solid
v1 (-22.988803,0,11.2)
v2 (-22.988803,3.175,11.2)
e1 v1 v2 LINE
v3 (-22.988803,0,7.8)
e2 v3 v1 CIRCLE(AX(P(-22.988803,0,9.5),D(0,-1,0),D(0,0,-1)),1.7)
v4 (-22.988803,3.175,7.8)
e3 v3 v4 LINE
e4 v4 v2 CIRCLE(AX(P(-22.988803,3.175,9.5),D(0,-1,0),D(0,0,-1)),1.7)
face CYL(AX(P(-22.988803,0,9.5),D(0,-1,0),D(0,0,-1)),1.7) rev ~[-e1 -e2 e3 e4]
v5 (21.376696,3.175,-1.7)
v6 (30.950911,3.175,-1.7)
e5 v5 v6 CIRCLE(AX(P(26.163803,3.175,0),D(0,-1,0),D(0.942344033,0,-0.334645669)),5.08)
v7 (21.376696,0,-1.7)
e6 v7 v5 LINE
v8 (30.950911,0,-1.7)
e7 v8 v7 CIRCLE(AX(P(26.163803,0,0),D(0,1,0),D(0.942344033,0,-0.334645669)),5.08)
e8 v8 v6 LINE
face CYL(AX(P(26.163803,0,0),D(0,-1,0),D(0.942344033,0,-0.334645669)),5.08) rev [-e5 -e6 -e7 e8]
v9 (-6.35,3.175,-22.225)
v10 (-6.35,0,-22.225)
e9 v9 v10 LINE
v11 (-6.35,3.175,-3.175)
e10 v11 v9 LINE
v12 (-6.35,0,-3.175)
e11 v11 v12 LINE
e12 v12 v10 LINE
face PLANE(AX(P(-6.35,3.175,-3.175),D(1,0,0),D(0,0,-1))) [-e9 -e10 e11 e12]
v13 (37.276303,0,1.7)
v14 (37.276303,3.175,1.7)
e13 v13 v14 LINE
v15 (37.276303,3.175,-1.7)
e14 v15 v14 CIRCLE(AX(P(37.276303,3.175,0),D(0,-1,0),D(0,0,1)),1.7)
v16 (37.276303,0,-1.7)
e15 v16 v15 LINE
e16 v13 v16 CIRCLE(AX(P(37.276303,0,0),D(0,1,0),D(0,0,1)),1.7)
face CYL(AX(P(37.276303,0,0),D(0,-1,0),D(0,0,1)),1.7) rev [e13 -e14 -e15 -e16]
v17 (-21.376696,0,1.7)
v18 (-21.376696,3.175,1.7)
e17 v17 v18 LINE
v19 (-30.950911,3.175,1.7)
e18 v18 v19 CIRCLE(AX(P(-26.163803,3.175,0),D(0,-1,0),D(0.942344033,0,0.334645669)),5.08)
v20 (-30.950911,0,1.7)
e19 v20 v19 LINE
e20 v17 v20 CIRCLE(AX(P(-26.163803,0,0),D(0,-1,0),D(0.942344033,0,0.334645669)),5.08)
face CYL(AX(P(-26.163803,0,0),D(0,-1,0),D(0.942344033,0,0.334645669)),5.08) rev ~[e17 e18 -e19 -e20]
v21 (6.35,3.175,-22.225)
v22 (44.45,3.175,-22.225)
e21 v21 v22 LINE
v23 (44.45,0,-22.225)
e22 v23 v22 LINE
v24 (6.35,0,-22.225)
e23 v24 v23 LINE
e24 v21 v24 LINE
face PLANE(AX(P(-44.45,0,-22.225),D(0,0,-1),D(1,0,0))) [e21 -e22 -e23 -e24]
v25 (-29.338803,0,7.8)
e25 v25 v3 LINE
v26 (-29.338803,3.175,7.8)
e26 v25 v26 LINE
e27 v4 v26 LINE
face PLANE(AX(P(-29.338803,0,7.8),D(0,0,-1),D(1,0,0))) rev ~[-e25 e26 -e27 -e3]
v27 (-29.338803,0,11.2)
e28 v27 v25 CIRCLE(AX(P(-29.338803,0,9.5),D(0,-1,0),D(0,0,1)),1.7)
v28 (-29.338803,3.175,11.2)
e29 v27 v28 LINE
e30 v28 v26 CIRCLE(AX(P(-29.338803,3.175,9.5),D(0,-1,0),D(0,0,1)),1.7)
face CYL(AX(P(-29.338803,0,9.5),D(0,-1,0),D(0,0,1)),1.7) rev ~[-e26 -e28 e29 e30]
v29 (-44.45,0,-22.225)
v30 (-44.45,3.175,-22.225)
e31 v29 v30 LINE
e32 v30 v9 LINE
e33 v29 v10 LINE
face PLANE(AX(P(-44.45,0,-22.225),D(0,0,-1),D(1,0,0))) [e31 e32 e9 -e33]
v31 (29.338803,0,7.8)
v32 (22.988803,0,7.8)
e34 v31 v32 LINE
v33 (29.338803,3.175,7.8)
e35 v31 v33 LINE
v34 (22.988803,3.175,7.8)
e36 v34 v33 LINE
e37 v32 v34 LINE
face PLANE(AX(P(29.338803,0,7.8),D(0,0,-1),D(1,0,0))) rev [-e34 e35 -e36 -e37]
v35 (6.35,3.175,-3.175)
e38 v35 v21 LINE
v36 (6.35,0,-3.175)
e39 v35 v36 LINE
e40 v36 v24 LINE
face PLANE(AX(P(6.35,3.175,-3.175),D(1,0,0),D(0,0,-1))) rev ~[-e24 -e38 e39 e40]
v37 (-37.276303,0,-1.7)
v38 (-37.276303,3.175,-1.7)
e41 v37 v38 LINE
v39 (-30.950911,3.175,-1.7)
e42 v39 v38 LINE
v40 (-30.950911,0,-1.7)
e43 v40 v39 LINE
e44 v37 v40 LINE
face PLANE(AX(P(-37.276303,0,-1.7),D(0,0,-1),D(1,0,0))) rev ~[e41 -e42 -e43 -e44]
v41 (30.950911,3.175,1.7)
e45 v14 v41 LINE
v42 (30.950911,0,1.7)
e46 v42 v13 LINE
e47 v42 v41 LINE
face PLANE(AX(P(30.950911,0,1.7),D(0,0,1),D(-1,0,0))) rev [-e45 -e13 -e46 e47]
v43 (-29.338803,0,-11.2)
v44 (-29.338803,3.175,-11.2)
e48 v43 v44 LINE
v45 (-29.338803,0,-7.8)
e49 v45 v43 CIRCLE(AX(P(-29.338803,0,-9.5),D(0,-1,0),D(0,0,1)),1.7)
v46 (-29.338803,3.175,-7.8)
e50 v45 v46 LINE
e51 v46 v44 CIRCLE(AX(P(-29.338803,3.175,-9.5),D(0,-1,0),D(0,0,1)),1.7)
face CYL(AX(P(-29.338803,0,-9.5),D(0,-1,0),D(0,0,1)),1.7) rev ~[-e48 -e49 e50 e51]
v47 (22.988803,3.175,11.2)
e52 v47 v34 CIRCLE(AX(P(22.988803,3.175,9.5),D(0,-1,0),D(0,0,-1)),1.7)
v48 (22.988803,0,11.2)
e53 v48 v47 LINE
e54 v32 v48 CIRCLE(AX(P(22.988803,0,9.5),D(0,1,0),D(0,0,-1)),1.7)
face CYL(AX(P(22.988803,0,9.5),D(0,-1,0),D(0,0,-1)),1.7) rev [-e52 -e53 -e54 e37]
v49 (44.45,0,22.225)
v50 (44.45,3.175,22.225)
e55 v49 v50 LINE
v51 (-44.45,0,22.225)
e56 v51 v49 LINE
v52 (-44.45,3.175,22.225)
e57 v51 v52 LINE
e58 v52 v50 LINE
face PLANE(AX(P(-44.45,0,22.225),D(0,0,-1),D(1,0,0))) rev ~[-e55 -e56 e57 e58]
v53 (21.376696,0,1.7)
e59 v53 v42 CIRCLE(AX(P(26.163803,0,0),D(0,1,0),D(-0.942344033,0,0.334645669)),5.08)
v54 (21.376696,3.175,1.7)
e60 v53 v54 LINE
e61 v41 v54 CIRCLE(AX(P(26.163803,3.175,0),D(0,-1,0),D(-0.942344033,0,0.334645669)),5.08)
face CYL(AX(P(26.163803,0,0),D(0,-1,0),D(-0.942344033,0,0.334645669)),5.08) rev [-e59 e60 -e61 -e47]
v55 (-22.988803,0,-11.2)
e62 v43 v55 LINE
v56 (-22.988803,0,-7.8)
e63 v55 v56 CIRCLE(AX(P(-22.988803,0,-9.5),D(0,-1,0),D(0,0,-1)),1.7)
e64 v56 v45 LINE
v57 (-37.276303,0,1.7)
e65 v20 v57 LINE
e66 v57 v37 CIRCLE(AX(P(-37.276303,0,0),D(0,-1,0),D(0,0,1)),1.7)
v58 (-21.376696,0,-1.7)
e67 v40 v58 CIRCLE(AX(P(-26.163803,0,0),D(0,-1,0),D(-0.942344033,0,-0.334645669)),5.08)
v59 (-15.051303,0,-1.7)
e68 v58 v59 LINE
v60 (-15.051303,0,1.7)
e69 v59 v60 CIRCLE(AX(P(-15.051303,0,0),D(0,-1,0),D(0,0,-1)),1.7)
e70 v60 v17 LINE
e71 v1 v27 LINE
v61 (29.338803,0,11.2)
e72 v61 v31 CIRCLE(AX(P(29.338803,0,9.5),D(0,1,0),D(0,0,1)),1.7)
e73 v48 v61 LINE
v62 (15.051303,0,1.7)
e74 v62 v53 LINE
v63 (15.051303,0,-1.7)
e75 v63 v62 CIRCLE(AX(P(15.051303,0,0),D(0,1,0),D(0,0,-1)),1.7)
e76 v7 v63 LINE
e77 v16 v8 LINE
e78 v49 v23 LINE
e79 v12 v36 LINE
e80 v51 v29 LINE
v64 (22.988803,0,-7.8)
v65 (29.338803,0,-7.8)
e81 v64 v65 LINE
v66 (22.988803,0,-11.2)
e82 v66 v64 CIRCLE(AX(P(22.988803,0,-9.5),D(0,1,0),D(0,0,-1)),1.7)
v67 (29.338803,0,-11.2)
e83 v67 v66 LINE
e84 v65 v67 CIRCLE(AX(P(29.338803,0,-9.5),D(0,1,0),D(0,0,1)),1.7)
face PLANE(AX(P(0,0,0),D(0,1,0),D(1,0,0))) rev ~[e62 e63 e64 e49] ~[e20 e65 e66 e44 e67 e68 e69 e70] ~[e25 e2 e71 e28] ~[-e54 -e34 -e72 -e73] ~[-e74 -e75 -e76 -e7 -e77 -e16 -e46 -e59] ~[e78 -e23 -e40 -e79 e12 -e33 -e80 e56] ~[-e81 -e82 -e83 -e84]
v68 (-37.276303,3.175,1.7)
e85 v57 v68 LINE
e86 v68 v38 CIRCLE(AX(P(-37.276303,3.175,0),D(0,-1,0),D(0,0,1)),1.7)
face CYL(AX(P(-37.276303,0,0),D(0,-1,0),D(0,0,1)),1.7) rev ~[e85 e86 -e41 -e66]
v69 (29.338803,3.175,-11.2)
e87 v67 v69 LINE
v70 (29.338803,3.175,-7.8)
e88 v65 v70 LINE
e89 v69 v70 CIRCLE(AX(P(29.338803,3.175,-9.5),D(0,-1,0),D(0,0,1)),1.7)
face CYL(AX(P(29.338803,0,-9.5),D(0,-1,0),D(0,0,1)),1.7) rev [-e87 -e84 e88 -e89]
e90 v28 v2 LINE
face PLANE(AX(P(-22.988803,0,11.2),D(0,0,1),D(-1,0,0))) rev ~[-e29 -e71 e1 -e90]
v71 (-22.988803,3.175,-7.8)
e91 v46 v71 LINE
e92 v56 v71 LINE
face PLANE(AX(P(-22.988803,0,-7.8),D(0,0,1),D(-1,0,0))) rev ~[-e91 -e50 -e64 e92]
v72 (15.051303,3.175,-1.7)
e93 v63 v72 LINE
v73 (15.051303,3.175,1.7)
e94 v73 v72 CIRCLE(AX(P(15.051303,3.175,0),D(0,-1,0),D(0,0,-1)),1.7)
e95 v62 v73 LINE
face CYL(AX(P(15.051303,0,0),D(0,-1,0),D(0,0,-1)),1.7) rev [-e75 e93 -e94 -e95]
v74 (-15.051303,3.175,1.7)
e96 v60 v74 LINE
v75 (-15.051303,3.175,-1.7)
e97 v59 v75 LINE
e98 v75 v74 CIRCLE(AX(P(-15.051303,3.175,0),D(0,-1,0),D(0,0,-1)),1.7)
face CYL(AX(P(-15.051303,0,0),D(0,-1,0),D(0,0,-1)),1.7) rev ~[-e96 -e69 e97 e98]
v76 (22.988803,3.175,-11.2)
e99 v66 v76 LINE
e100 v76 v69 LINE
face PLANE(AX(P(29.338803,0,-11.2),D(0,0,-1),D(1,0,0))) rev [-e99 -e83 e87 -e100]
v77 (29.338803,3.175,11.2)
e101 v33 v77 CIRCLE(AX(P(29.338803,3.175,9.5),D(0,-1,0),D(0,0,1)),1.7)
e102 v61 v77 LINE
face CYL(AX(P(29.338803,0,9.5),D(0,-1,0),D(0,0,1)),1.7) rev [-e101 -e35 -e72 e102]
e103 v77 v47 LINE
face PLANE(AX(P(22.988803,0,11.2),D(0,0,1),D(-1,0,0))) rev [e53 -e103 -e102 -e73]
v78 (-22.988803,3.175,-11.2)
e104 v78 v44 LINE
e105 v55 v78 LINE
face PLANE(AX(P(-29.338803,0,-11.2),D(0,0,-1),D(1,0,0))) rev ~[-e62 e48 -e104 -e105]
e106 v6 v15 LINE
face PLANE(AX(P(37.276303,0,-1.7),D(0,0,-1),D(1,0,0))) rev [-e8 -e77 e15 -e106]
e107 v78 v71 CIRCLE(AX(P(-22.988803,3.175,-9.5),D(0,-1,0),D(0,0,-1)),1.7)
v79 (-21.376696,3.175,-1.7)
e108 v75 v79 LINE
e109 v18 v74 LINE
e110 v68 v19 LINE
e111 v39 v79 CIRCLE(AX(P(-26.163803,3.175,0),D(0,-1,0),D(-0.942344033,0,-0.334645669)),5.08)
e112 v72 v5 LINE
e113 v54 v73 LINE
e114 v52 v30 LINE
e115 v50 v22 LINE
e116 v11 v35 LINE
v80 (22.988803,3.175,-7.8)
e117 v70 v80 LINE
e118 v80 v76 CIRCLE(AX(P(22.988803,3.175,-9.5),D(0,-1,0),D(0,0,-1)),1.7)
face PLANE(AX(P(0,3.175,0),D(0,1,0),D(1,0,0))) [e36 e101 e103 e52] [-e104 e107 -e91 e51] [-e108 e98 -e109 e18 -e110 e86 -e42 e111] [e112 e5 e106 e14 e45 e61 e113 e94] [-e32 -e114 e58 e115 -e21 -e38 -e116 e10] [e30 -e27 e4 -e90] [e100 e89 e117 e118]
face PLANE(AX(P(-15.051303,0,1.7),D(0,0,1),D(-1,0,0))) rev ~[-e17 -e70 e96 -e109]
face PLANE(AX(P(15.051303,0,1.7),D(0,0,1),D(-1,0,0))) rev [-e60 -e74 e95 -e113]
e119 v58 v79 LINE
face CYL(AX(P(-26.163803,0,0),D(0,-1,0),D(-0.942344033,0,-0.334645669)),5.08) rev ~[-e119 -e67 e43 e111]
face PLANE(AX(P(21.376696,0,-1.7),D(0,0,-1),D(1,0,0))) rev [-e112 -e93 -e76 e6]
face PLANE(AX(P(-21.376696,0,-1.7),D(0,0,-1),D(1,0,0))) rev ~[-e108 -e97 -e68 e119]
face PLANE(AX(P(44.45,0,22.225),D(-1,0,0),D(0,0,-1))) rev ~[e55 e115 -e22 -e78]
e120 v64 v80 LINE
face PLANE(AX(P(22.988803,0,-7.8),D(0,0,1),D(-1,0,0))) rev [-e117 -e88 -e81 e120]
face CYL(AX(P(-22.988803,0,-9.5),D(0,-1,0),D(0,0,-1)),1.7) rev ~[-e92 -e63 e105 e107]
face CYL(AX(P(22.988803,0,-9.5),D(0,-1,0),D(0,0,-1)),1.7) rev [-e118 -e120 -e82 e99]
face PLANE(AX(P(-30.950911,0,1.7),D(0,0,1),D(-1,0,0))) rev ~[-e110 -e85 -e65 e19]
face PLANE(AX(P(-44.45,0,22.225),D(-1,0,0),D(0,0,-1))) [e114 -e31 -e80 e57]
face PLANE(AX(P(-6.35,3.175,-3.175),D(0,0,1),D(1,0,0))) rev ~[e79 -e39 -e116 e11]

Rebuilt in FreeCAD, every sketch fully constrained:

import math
import FreeCAD as App
import Part
import Sketcher
Q = App.Units.Quantity


def add_polygon(sketch, points):
    """Adds a closed chain of lines whose ends are joined by coincident constraints."""
    first, n = sketch.GeometryCount, len(points)
    for a, b in zip(points, points[1:] + points[:1]):
        sketch.addGeometry(Part.LineSegment(App.Vector(*a, 0), App.Vector(*b, 0)), False)
    for i in range(n):
        sketch.addConstraint(Sketcher.Constraint("Coincident", first + i, 2, first + (i + 1) % n, 1))

doc = App.newDocument("Part")
body = doc.addObject("PartDesign::Body", "Body")

# Sketch on XZ plane
sketch1 = body.newObject("Sketcher::SketchObject", "Sketch")
sketch1.AttachmentSupport = (doc.getObject("XZ_Plane"), [""])
sketch1.MapMode = "FlatFace"
add_polygon(sketch1, [(-44, -22), (-44, 22), (44, 22), (44, -22)])  # lines 0-3
sketch1.addConstraint([
    Sketcher.Constraint("Vertical", 0),
    Sketcher.Constraint("Horizontal", 1),
    Sketcher.Constraint("Vertical", 2),
    Sketcher.Constraint("Horizontal", 3),
    Sketcher.Constraint("Symmetric", 0, 2, 2, 2, -1, 1),
    Sketcher.Constraint("DistanceX", 1, 1, 1, 2, Q("3.5 in")),
    Sketcher.Constraint("DistanceY", 0, 1, 0, 2, Q("1.75 in")),
])
pad1 = body.newObject("PartDesign::Pad", "Pad")
pad1.Profile = sketch1
pad1.Length = Q("0.125 in")
pad1.Reversed = True

# Sketch on XZ plane
sketch2 = body.newObject("Sketcher::SketchObject", "Sketch001")
sketch2.AttachmentSupport = (doc.getObject("XZ_Plane"), [""])
sketch2.MapMode = "FlatFace"
sketch2.addGeometry([
    Part.LineSegment(App.Vector(-23, 11.2, 0), App.Vector(-29.3, 11.2, 0)),  # 0
    Part.ArcOfCircle(Part.Circle(App.Vector(-29.3, 9.5, 0), App.Vector(0, 0, 1), 1.7), math.radians(90), math.radians(270)),  # 1
    Part.LineSegment(App.Vector(-29.3, 7.8, 0), App.Vector(-23, 7.8, 0)),  # 2
    Part.ArcOfCircle(Part.Circle(App.Vector(-23, 9.5, 0), App.Vector(0, 0, 1), 1.7), math.radians(-90), math.radians(90)),  # 3
    Part.ArcOfCircle(Part.Circle(App.Vector(-37.3, 0, 0), App.Vector(0, 0, 1), 1.7), math.radians(90), math.radians(270)),  # 4
    Part.LineSegment(App.Vector(-37.3, -1.7, 0), App.Vector(-31, -1.7, 0)),  # 5
    Part.ArcOfCircle(Part.Circle(App.Vector(-26.2, 0, 0), App.Vector(0, 0, 1), 5.1), math.radians(-160), math.radians(-20)),  # 6
    Part.LineSegment(App.Vector(-21.4, -1.7, 0), App.Vector(-15.1, -1.7, 0)),  # 7
    Part.ArcOfCircle(Part.Circle(App.Vector(-15.1, 0, 0), App.Vector(0, 0, 1), 1.7), math.radians(-90), math.radians(90)),  # 8
    Part.LineSegment(App.Vector(-15.1, 1.7, 0), App.Vector(-21.4, 1.7, 0)),  # 9
    Part.ArcOfCircle(Part.Circle(App.Vector(-26.2, 0, 0), App.Vector(0, 0, 1), 5.1), math.radians(20), math.radians(160)),  # 10
    Part.LineSegment(App.Vector(-31, 1.7, 0), App.Vector(-37.3, 1.7, 0)),  # 11
    Part.LineSegment(App.Vector(-29.3, -11.2, 0), App.Vector(-23, -11.2, 0)),  # 12
    Part.ArcOfCircle(Part.Circle(App.Vector(-23, -9.5, 0), App.Vector(0, 0, 1), 1.7), math.radians(-90), math.radians(90)),  # 13
    Part.LineSegment(App.Vector(-23, -7.8, 0), App.Vector(-29.3, -7.8, 0)),  # 14
    Part.ArcOfCircle(Part.Circle(App.Vector(-29.3, -9.5, 0), App.Vector(0, 0, 1), 1.7), math.radians(90), math.radians(270)),  # 15
], False)
sketch2.addConstraint([
    Sketcher.Constraint("Tangent", 0, 2, 1, 1),
    Sketcher.Constraint("Tangent", 1, 2, 2, 1),
    Sketcher.Constraint("Tangent", 2, 2, 3, 1),
    Sketcher.Constraint("Tangent", 3, 2, 0, 1),
    Sketcher.Constraint("Tangent", 4, 2, 5, 1),
    Sketcher.Constraint("Coincident", 5, 2, 6, 1),
    Sketcher.Constraint("Coincident", 6, 2, 7, 1),
    Sketcher.Constraint("Tangent", 7, 2, 8, 1),
    Sketcher.Constraint("Tangent", 8, 2, 9, 1),
    Sketcher.Constraint("Coincident", 9, 2, 10, 1),
    Sketcher.Constraint("Coincident", 10, 2, 11, 1),
    Sketcher.Constraint("Tangent", 11, 2, 4, 1),
    Sketcher.Constraint("Tangent", 12, 2, 13, 1),
    Sketcher.Constraint("Tangent", 13, 2, 14, 1),
    Sketcher.Constraint("Tangent", 14, 2, 15, 1),
    Sketcher.Constraint("Tangent", 15, 2, 12, 1),
    Sketcher.Constraint("Horizontal", 0),
    Sketcher.Constraint("Horizontal", 2),
    Sketcher.Constraint("Horizontal", 5),
    Sketcher.Constraint("Horizontal", 7),
    Sketcher.Constraint("Horizontal", 9),
    Sketcher.Constraint("Horizontal", 11),
    Sketcher.Constraint("Horizontal", 12),
    Sketcher.Constraint("Horizontal", 14),
    Sketcher.Constraint("Coincident", 10, 3, 6, 3),
    Sketcher.Constraint("Equal", 3, 4),
    Sketcher.Constraint("Equal", 4, 8),
    Sketcher.Constraint("Equal", 6, 10),
    Sketcher.Constraint("Equal", 8, 13),
    Sketcher.Constraint("Symmetric", 3, 3, 13, 3, -1),
    Sketcher.Constraint("Symmetric", 6, 2, 9, 2, -1),
    Sketcher.Constraint("PointOnObject", 4, 3, -1),
    Sketcher.Constraint("Vertical", 1, 3, 15, 3),
    Sketcher.Constraint("Equal", 5, 7),
    Sketcher.Constraint("Radius", 6, Q("0.2 in")),
    Sketcher.Constraint("DistanceX", 0, 2, 0, 1, Q("0.25 in")),
    Sketcher.Constraint("Radius", 1, 1.7),
    Sketcher.Constraint("DistanceX", 4, 3, 1, 3, Q("0.3125 in")),
    Sketcher.Constraint("DistanceX", 1, 3, 6, 3, Q("0.125 in")),
    Sketcher.Constraint("DistanceY", -1, 1, 1, 3, 9.5),
    Sketcher.Constraint("DistanceX", 5, 2, -1, 1, 30.950911),
])
pocket1 = body.newObject("PartDesign::Pocket", "Pocket")
pocket1.Profile = sketch2
pocket1.Type = "ThroughAll"
doc.recompute()

mirrored = body.newObject("PartDesign::Mirrored", "Mirrored")
mirrored.Originals = [pocket1]
mirrored.MirrorPlane = (doc.getObject("YZ_Plane"), [""])
body.Tip = mirrored

# Sketch on XZ plane
sketch3 = body.newObject("Sketcher::SketchObject", "Sketch002")
sketch3.AttachmentSupport = (doc.getObject("XZ_Plane"), [""])
sketch3.MapMode = "FlatFace"
sketch3.AttachmentOffset = App.Placement(App.Vector(0, 0, -0.125 * 25.4), App.Rotation())
add_polygon(sketch3, [(-6, -22), (-6, -3), (6, -3), (6, -22)])  # lines 0-3
sketch3.addConstraint([
    Sketcher.Constraint("Vertical", 0),
    Sketcher.Constraint("Horizontal", 1),
    Sketcher.Constraint("Vertical", 2),
    Sketcher.Constraint("Horizontal", 3),
    Sketcher.Constraint("DistanceX", 1, 1, 1, 2, Q("0.5 in")),
    Sketcher.Constraint("DistanceY", 0, 1, 0, 2, Q("0.75 in")),
    Sketcher.Constraint("DistanceX", 0, 2, -1, 1, Q("0.25 in")),
    Sketcher.Constraint("DistanceY", 0, 2, -1, 1, Q("0.125 in")),
])
pocket2 = body.newObject("PartDesign::Pocket", "Pocket001")
pocket2.Profile = sketch3
pocket2.Type = "ThroughAll"
pocket2.Reversed = True

doc.recompute()
